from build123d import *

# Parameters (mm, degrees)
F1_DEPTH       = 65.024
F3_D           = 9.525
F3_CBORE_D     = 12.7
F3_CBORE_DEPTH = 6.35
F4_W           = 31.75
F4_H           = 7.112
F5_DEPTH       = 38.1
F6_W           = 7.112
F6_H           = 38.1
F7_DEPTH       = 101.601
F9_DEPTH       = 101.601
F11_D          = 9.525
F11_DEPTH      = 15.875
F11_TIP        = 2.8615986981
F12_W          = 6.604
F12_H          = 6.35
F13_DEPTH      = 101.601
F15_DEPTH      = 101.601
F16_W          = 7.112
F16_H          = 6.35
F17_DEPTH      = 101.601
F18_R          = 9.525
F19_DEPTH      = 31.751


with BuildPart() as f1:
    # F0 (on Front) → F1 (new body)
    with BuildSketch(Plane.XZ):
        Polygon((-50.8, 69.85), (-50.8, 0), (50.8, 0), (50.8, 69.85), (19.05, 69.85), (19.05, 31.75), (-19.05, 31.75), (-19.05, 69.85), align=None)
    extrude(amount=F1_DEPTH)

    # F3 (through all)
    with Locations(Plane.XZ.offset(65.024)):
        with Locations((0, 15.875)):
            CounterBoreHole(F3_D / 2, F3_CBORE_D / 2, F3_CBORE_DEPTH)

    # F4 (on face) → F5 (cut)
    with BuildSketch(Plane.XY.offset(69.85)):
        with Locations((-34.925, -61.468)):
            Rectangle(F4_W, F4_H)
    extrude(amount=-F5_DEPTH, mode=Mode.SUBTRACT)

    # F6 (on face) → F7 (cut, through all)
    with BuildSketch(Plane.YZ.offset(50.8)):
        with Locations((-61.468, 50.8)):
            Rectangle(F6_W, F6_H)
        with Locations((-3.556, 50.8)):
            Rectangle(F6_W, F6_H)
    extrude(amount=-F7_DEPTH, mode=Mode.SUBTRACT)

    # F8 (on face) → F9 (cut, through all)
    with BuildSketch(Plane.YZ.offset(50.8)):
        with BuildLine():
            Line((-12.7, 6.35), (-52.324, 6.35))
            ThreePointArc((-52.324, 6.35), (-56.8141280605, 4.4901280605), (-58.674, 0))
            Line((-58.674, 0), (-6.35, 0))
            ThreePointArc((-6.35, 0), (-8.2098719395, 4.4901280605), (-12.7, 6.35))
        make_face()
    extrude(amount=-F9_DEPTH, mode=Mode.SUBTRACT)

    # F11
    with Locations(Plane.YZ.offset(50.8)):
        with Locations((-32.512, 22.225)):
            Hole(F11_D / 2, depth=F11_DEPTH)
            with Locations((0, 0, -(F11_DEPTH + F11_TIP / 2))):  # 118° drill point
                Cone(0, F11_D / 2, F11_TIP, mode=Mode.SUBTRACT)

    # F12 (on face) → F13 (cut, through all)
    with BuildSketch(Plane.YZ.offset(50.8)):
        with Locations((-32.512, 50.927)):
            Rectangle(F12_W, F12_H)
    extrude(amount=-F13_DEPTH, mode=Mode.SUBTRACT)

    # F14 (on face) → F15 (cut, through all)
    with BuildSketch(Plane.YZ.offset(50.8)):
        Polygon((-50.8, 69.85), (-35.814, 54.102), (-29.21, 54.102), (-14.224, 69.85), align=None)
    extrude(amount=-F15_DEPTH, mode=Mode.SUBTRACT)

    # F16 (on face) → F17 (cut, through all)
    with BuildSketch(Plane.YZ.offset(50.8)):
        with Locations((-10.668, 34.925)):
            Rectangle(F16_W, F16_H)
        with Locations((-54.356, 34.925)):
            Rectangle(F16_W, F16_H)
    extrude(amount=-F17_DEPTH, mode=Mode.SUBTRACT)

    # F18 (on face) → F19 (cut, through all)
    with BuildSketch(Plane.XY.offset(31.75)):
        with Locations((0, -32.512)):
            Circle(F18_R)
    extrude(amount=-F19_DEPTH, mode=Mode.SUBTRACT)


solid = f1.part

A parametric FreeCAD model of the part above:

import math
import FreeCAD as App
import Part
import Sketcher
Q = App.Units.Quantity

doc = App.newDocument("Part")
body = doc.addObject("PartDesign::Body", "Body")

# Sketch on XZ plane
sketch1 = doc.addObject("Sketcher::SketchObject", "Sketch")
body.addObject(sketch1)
sketch1.AttachmentSupport = (doc.XZ_Plane, [""])
sketch1.MapMode = "FlatFace"
sketch1.addGeometry(Part.LineSegment(App.Vector(-50.8, 69.85, 0), App.Vector(-50.8, 0, 0)), False)
sketch1.addGeometry(Part.LineSegment(App.Vector(-50.8, 0, 0), App.Vector(50.8, 0, 0)), False)
sketch1.addGeometry(Part.LineSegment(App.Vector(50.8, 0, 0), App.Vector(50.8, 69.85, 0)), False)
sketch1.addGeometry(Part.LineSegment(App.Vector(50.8, 69.85, 0), App.Vector(19.05, 69.85, 0)), False)
sketch1.addGeometry(Part.LineSegment(App.Vector(19.05, 69.85, 0), App.Vector(19.05, 31.75, 0)), False)
sketch1.addGeometry(Part.LineSegment(App.Vector(19.05, 31.75, 0), App.Vector(-19.05, 31.75, 0)), False)
sketch1.addGeometry(Part.LineSegment(App.Vector(-19.05, 31.75, 0), App.Vector(-19.05, 69.85, 0)), False)
sketch1.addGeometry(Part.LineSegment(App.Vector(-19.05, 69.85, 0), App.Vector(-50.8, 69.85, 0)), False)
sketch1.addConstraint(Sketcher.Constraint("Coincident", 0, 2, 1, 1))
sketch1.addConstraint(Sketcher.Constraint("Coincident", 1, 2, 2, 1))
sketch1.addConstraint(Sketcher.Constraint("Coincident", 2, 2, 3, 1))
sketch1.addConstraint(Sketcher.Constraint("Coincident", 3, 2, 4, 1))
sketch1.addConstraint(Sketcher.Constraint("Coincident", 4, 2, 5, 1))
sketch1.addConstraint(Sketcher.Constraint("Coincident", 5, 2, 6, 1))
sketch1.addConstraint(Sketcher.Constraint("Coincident", 6, 2, 7, 1))
sketch1.addConstraint(Sketcher.Constraint("Coincident", 7, 2, 0, 1))
sketch1.addConstraint(Sketcher.Constraint("Vertical", 0))
sketch1.addConstraint(Sketcher.Constraint("Horizontal", 1))
sketch1.addConstraint(Sketcher.Constraint("Vertical", 2))
sketch1.addConstraint(Sketcher.Constraint("Horizontal", 3))
sketch1.addConstraint(Sketcher.Constraint("Vertical", 4))
sketch1.addConstraint(Sketcher.Constraint("Horizontal", 5))
sketch1.addConstraint(Sketcher.Constraint("Vertical", 6))
sketch1.addConstraint(Sketcher.Constraint("Horizontal", 7))
sketch1.addConstraint(Sketcher.Constraint("Symmetric", 0, 2, 1, 2, -1, 1))
sketch1.addConstraint(Sketcher.Constraint("Symmetric", 3, 2, 6, 2, -2))
sketch1.addConstraint(Sketcher.Constraint("Equal", 5, 4))
sketch1.addConstraint(Sketcher.Constraint("DistanceX", 1, 1, 1, 2, Q("4 in")))
sketch1.addConstraint(Sketcher.Constraint("DistanceX", 5, 2, 5, 1, Q("1.5 in")))
sketch1.addConstraint(Sketcher.Constraint("DistanceY", 0, 2, 0, 1, Q("2.75 in")))
pad1 = doc.addObject("PartDesign::Pad", "Pad")
body.addObject(pad1)
pad1.Profile = sketch1
pad1.Length = Q("2.56 in")

# Sketch on XZ plane
sketch2 = doc.addObject("Sketcher::SketchObject", "Sketch001")
body.addObject(sketch2)
sketch2.AttachmentSupport = (doc.XZ_Plane, [""])
sketch2.MapMode = "FlatFace"
sketch2.AttachmentOffset = App.Placement(App.Vector(0, 0, 2.56 * 25.4), App.Rotation())
sketch2.addGeometry(Part.Circle(App.Vector(0, 15.875, 0), App.Vector(0, 0, 1), 4.7625), False)
sketch2.addConstraint(Sketcher.Constraint("PointOnObject", 0, 3, -2))
sketch2.addConstraint(Sketcher.Constraint("Diameter", 0, Q("0.375 in")))
sketch2.addConstraint(Sketcher.Constraint("DistanceY", -1, 1, 0, 3, Q("0.625 in")))
doc.recompute()
hole = doc.addObject("PartDesign::Hole", "Hole")
body.addObject(hole)
hole.Profile = sketch2
hole.ThreadType = "None"
hole.Diameter = Q("0.375 in")
hole.DepthType = "ThroughAll"
hole.HoleCutType = "Counterbore"
hole.HoleCutDiameter = Q("0.5 in")
hole.HoleCutDepth = Q("0.25 in")

# Sketch on XY plane
sketch3 = doc.addObject("Sketcher::SketchObject", "Sketch002")
body.addObject(sketch3)
sketch3.AttachmentSupport = (doc.XY_Plane, [""])
sketch3.MapMode = "FlatFace"
sketch3.AttachmentOffset = App.Placement(App.Vector(0, 0, 2.75 * 25.4), App.Rotation())
sketch3.addGeometry(Part.LineSegment(App.Vector(-50.8, -57.912, 0), App.Vector(-50.8, -65.024, 0)), False)
sketch3.addGeometry(Part.LineSegment(App.Vector(-50.8, -65.024, 0), App.Vector(-19.05, -65.024, 0)), False)
sketch3.addGeometry(Part.LineSegment(App.Vector(-19.05, -65.024, 0), App.Vector(-19.05, -57.912, 0)), False)
sketch3.addGeometry(Part.LineSegment(App.Vector(-19.05, -57.912, 0), App.Vector(-50.8, -57.912, 0)), False)
sketch3.addConstraint(Sketcher.Constraint("Coincident", 0, 2, 1, 1))
sketch3.addConstraint(Sketcher.Constraint("Coincident", 1, 2, 2, 1))
sketch3.addConstraint(Sketcher.Constraint("Coincident", 2, 2, 3, 1))
sketch3.addConstraint(Sketcher.Constraint("Coincident", 3, 2, 0, 1))
sketch3.addConstraint(Sketcher.Constraint("Vertical", 0))
sketch3.addConstraint(Sketcher.Constraint("Horizontal", 1))
sketch3.addConstraint(Sketcher.Constraint("Vertical", 2))
sketch3.addConstraint(Sketcher.Constraint("Horizontal", 3))
sketch3.addConstraint(Sketcher.Constraint("DistanceX", 0, 2, -1, 1, Q("2 in")))
sketch3.addConstraint(Sketcher.Constraint("DistanceX", 1, 1, 1, 2, Q("1.25 in")))
sketch3.addConstraint(Sketcher.Constraint("DistanceY", 0, 2, 0, 1, Q("0.28 in")))
sketch3.addConstraint(Sketcher.Constraint("DistanceY", 0, 2, -1, 1, Q("2.56 in")))
pocket1 = doc.addObject("PartDesign::Pocket", "Pocket")
body.addObject(pocket1)
pocket1.Profile = sketch3
pocket1.Length = Q("1.5 in")

# Sketch on YZ plane
sketch4 = doc.addObject("Sketcher::SketchObject", "Sketch003")
body.addObject(sketch4)
sketch4.AttachmentSupport = (doc.YZ_Plane, [""])
sketch4.MapMode = "FlatFace"
sketch4.AttachmentOffset = App.Placement(App.Vector(0, 0, 2 * 25.4), App.Rotation())
sketch4.addGeometry(Part.LineSegment(App.Vector(-65.024, 69.85, 0), App.Vector(-65.024, 31.75, 0)), False)
sketch4.addGeometry(Part.LineSegment(App.Vector(-65.024, 31.75, 0), App.Vector(-57.912, 31.75, 0)), False)
sketch4.addGeometry(Part.LineSegment(App.Vector(-57.912, 31.75, 0), App.Vector(-57.912, 69.85, 0)), False)
sketch4.addGeometry(Part.LineSegment(App.Vector(-57.912, 69.85, 0), App.Vector(-65.024, 69.85, 0)), False)
sketch4.addGeometry(Part.LineSegment(App.Vector(-7.112, 69.85, 0), App.Vector(-7.112, 31.75, 0)), False)
sketch4.addGeometry(Part.LineSegment(App.Vector(-7.112, 31.75, 0), App.Vector(0, 31.75, 0)), False)
sketch4.addGeometry(Part.LineSegment(App.Vector(0, 31.75, 0), App.Vector(0, 69.85, 0)), False)
sketch4.addGeometry(Part.LineSegment(App.Vector(0, 69.85, 0), App.Vector(-7.112, 69.85, 0)), False)
sketch4.addConstraint(Sketcher.Constraint("Coincident", 0, 2, 1, 1))
sketch4.addConstraint(Sketcher.Constraint("Coincident", 1, 2, 2, 1))
sketch4.addConstraint(Sketcher.Constraint("Coincident", 2, 2, 3, 1))
sketch4.addConstraint(Sketcher.Constraint("Coincident", 3, 2, 0, 1))
sketch4.addConstraint(Sketcher.Constraint("Coincident", 4, 2, 5, 1))
sketch4.addConstraint(Sketcher.Constraint("Coincident", 5, 2, 6, 1))
sketch4.addConstraint(Sketcher.Constraint("Coincident", 6, 2, 7, 1))
sketch4.addConstraint(Sketcher.Constraint("Coincident", 7, 2, 4, 1))
sketch4.addConstraint(Sketcher.Constraint("Vertical", 0))
sketch4.addConstraint(Sketcher.Constraint("Horizontal", 1))
sketch4.addConstraint(Sketcher.Constraint("Vertical", 2))
sketch4.addConstraint(Sketcher.Constraint("Horizontal", 3))
sketch4.addConstraint(Sketcher.Constraint("Vertical", 4))
sketch4.addConstraint(Sketcher.Constraint("Horizontal", 5))
sketch4.addConstraint(Sketcher.Constraint("Vertical", 6))
sketch4.addConstraint(Sketcher.Constraint("Horizontal", 7))
sketch4.addConstraint(Sketcher.Constraint("PointOnObject", 5, 2, -2))
sketch4.addConstraint(Sketcher.Constraint("Horizontal", 1, 2, 4, 2))
sketch4.addConstraint(Sketcher.Constraint("Horizontal", 3, 2, 6, 2))
sketch4.addConstraint(Sketcher.Constraint("Equal", 3, 5))
sketch4.addConstraint(Sketcher.Constraint("DistanceY", 0, 2, 0, 1, Q("1.5 in")))
sketch4.addConstraint(Sketcher.Constraint("DistanceX", 1, 2, 4, 2, Q("2 in")))
sketch4.addConstraint(Sketcher.Constraint("DistanceX", 1, 1, 1, 2, Q("0.28 in")))
sketch4.addConstraint(Sketcher.Constraint("DistanceY", -1, 1, 0, 2, Q("1.25 in")))
pocket2 = doc.addObject("PartDesign::Pocket", "Pocket001")
body.addObject(pocket2)
pocket2.Profile = sketch4
pocket2.Type = "ThroughAll"

# Sketch on YZ plane
sketch5 = doc.addObject("Sketcher::SketchObject", "Sketch004")
body.addObject(sketch5)
sketch5.AttachmentSupport = (doc.YZ_Plane, [""])
sketch5.MapMode = "FlatFace"
sketch5.AttachmentOffset = App.Placement(App.Vector(0, 0, 2 * 25.4), App.Rotation())
sketch5.addGeometry(Part.LineSegment(App.Vector(-12.7, 6.35, 0), App.Vector(-52.324, 6.35, 0)), False)
sketch5.addGeometry(Part.ArcOfCircle(Part.Circle(App.Vector(-52.324, 0, 0), App.Vector(0, 0, 1), 6.35), math.radians(90), math.radians(180)), False)
sketch5.addGeometry(Part.LineSegment(App.Vector(-58.674, 0, 0), App.Vector(-6.35, 0, 0)), False)
sketch5.addGeometry(Part.ArcOfCircle(Part.Circle(App.Vector(-12.7, 0, 0), App.Vector(0, 0, 1), 6.35), math.radians(0), math.radians(90)), False)
sketch5.addConstraint(Sketcher.Constraint("Tangent", 0, 2, 1, 1))
sketch5.addConstraint(Sketcher.Constraint("Coincident", 1, 2, 2, 1))
sketch5.addConstraint(Sketcher.Constraint("Coincident", 2, 2, 3, 1))
sketch5.addConstraint(Sketcher.Constraint("Tangent", 3, 2, 0, 1))
sketch5.addConstraint(Sketcher.Constraint("Horizontal", 0))
sketch5.addConstraint(Sketcher.Constraint("Horizontal", 2))
sketch5.addConstraint(Sketcher.Constraint("Equal", 1, 3))
sketch5.addConstraint(Sketcher.Constraint("PointOnObject", 1, 3, -1))
sketch5.addConstraint(Sketcher.Constraint("PointOnObject", 1, 2, -1))
sketch5.addConstraint(Sketcher.Constraint("Radius", 1, Q("0.25 in")))
sketch5.addConstraint(Sketcher.Constraint("DistanceX", 0, 2, 0, 1, Q("1.56 in")))
sketch5.addConstraint(Sketcher.Constraint("DistanceX", 3, 3, -1, 1, Q("0.5 in")))
pocket3 = doc.addObject("PartDesign::Pocket", "Pocket002")
body.addObject(pocket3)
pocket3.Profile = sketch5
pocket3.Type = "ThroughAll"

# Sketch on YZ plane
sketch6 = doc.addObject("Sketcher::SketchObject", "Sketch005")
body.addObject(sketch6)
sketch6.AttachmentSupport = (doc.YZ_Plane, [""])
sketch6.MapMode = "FlatFace"
sketch6.AttachmentOffset = App.Placement(App.Vector(0, 0, 2 * 25.4), App.Rotation())
sketch6.addGeometry(Part.Circle(App.Vector(-32.512, 22.225, 0), App.Vector(0, 0, 1), 4.7625), False)
sketch6.addConstraint(Sketcher.Constraint("Diameter", 0, Q("0.375 in")))
sketch6.addConstraint(Sketcher.Constraint("DistanceX", 0, 3, -1, 1, Q("1.28 in")))
sketch6.addConstraint(Sketcher.Constraint("DistanceY", -1, 1, 0, 3, Q("0.875 in")))
doc.recompute()
hole2 = doc.addObject("PartDesign::Hole", "Hole001")
body.addObject(hole2)
hole2.Profile = sketch6
hole2.ThreadType = "None"
hole2.Diameter = Q("0.375 in")
hole2.DepthType = "Dimension"
hole2.Depth = Q("0.625 in")
hole2.DrillPoint = "Angled"
hole2.DrillPointAngle = 118

# Sketch on YZ plane
sketch7 = doc.addObject("Sketcher::SketchObject", "Sketch006")
body.addObject(sketch7)
sketch7.AttachmentSupport = (doc.YZ_Plane, [""])
sketch7.MapMode = "FlatFace"
sketch7.AttachmentOffset = App.Placement(App.Vector(0, 0, 2 * 25.4), App.Rotation())
sketch7.addGeometry(Part.LineSegment(App.Vector(-35.814, 54.102, 0), App.Vector(-35.814, 47.752, 0)), False)
sketch7.addGeometry(Part.LineSegment(App.Vector(-35.814, 47.752, 0), App.Vector(-29.21, 47.752, 0)), False)
sketch7.addGeometry(Part.LineSegment(App.Vector(-29.21, 47.752, 0), App.Vector(-29.21, 54.102, 0)), False)
sketch7.addGeometry(Part.LineSegment(App.Vector(-29.21, 54.102, 0), App.Vector(-35.814, 54.102, 0)), False)
sketch7.addConstraint(Sketcher.Constraint("Coincident", 0, 2, 1, 1))
sketch7.addConstraint(Sketcher.Constraint("Coincident", 1, 2, 2, 1))
sketch7.addConstraint(Sketcher.Constraint("Coincident", 2, 2, 3, 1))
sketch7.addConstraint(Sketcher.Constraint("Coincident", 3, 2, 0, 1))
sketch7.addConstraint(Sketcher.Constraint("Vertical", 0))
sketch7.addConstraint(Sketcher.Constraint("Horizontal", 1))
sketch7.addConstraint(Sketcher.Constraint("Vertical", 2))
sketch7.addConstraint(Sketcher.Constraint("Horizontal", 3))
sketch7.addConstraint(Sketcher.Constraint("DistanceX", 1, 1, 1, 2, Q("0.26 in")))
sketch7.addConstraint(Sketcher.Constraint("DistanceY", 0, 2, 0, 1, Q("0.25 in")))
sketch7.addConstraint(Sketcher.Constraint("DistanceX", 0, 2, -1, 1, Q("1.41 in")))
sketch7.addConstraint(Sketcher.Constraint("DistanceY", -1, 1, 0, 2, Q("1.88 in")))
pocket4 = doc.addObject("PartDesign::Pocket", "Pocket003")
body.addObject(pocket4)
pocket4.Profile = sketch7
pocket4.Type = "ThroughAll"

# Sketch on YZ plane
sketch8 = doc.addObject("Sketcher::SketchObject", "Sketch007")
body.addObject(sketch8)
sketch8.AttachmentSupport = (doc.YZ_Plane, [""])
sketch8.MapMode = "FlatFace"
sketch8.AttachmentOffset = App.Placement(App.Vector(0, 0, 2 * 25.4), App.Rotation())
sketch8.addGeometry(Part.LineSegment(App.Vector(-50.8, 69.85, 0), App.Vector(-35.814, 54.102, 0)), False)
sketch8.addGeometry(Part.LineSegment(App.Vector(-35.814, 54.102, 0), App.Vector(-29.21, 54.102, 0)), False)
sketch8.addGeometry(Part.LineSegment(App.Vector(-29.21, 54.102, 0), App.Vector(-14.224, 69.85, 0)), False)
sketch8.addGeometry(Part.LineSegment(App.Vector(-14.224, 69.85, 0), App.Vector(-50.8, 69.85, 0)), False)
sketch8.addConstraint(Sketcher.Constraint("Coincident", 0, 2, 1, 1))
sketch8.addConstraint(Sketcher.Constraint("Coincident", 1, 2, 2, 1))
sketch8.addConstraint(Sketcher.Constraint("Coincident", 2, 2, 3, 1))
sketch8.addConstraint(Sketcher.Constraint("Coincident", 3, 2, 0, 1))
sketch8.addConstraint(Sketcher.Constraint("Horizontal", 1))
sketch8.addConstraint(Sketcher.Constraint("Horizontal", 3))
sketch8.addConstraint(Sketcher.Constraint("Equal", 0, 2))
sketch8.addConstraint(Sketcher.Constraint("DistanceX", 3, 2, -1, 1, Q("2 in")))
sketch8.addConstraint(Sketcher.Constraint("DistanceX", 1, 1, 1, 2, Q("0.26 in")))
sketch8.addConstraint(Sketcher.Constraint("DistanceX", 3, 2, 3, 1, Q("1.44 in")))
sketch8.addConstraint(Sketcher.Constraint("DistanceY", -1, 1, 0, 2, Q("2.13 in")))
sketch8.addConstraint(Sketcher.Constraint("DistanceY", -1, 1, 2, 2, Q("2.75 in")))
pocket5 = doc.addObject("PartDesign::Pocket", "Pocket004")
body.addObject(pocket5)
pocket5.Profile = sketch8
pocket5.Type = "ThroughAll"

# Sketch on YZ plane
sketch9 = doc.addObject("Sketcher::SketchObject", "Sketch008")
body.addObject(sketch9)
sketch9.AttachmentSupport = (doc.YZ_Plane, [""])
sketch9.MapMode = "FlatFace"
sketch9.AttachmentOffset = App.Placement(App.Vector(0, 0, 2 * 25.4), App.Rotation())
sketch9.addGeometry(Part.LineSegment(App.Vector(-14.224, 38.1, 0), App.Vector(-14.224, 31.75, 0)), False)
sketch9.addGeometry(Part.LineSegment(App.Vector(-14.224, 31.75, 0), App.Vector(-7.112, 31.75, 0)), False)
sketch9.addGeometry(Part.LineSegment(App.Vector(-7.112, 31.75, 0), App.Vector(-7.112, 38.1, 0)), False)
sketch9.addGeometry(Part.LineSegment(App.Vector(-7.112, 38.1, 0), App.Vector(-14.224, 38.1, 0)), False)
sketch9.addGeometry(Part.LineSegment(App.Vector(-57.912, 38.1, 0), App.Vector(-57.912, 31.75, 0)), False)
sketch9.addGeometry(Part.LineSegment(App.Vector(-57.912, 31.75, 0), App.Vector(-50.8, 31.75, 0)), False)
sketch9.addGeometry(Part.LineSegment(App.Vector(-50.8, 31.75, 0), App.Vector(-50.8, 38.1, 0)), False)
sketch9.addGeometry(Part.LineSegment(App.Vector(-50.8, 38.1, 0), App.Vector(-57.912, 38.1, 0)), False)
sketch9.addConstraint(Sketcher.Constraint("Coincident", 0, 2, 1, 1))
sketch9.addConstraint(Sketcher.Constraint("Coincident", 1, 2, 2, 1))
sketch9.addConstraint(Sketcher.Constraint("Coincident", 2, 2, 3, 1))
sketch9.addConstraint(Sketcher.Constraint("Coincident", 3, 2, 0, 1))
sketch9.addConstraint(Sketcher.Constraint("Coincident", 4, 2, 5, 1))
sketch9.addConstraint(Sketcher.Constraint("Coincident", 5, 2, 6, 1))
sketch9.addConstraint(Sketcher.Constraint("Coincident", 6, 2, 7, 1))
sketch9.addConstraint(Sketcher.Constraint("Coincident", 7, 2, 4, 1))
sketch9.addConstraint(Sketcher.Constraint("Vertical", 0))
sketch9.addConstraint(Sketcher.Constraint("Horizontal", 1))
sketch9.addConstraint(Sketcher.Constraint("Vertical", 2))
sketch9.addConstraint(Sketcher.Constraint("Horizontal", 3))
sketch9.addConstraint(Sketcher.Constraint("Vertical", 4))
sketch9.addConstraint(Sketcher.Constraint("Horizontal", 5))
sketch9.addConstraint(Sketcher.Constraint("Vertical", 6))
sketch9.addConstraint(Sketcher.Constraint("Horizontal", 7))
sketch9.addConstraint(Sketcher.Constraint("Horizontal", 1, 2, 4, 2))
sketch9.addConstraint(Sketcher.Constraint("Horizontal", 3, 2, 6, 2))
sketch9.addConstraint(Sketcher.Constraint("Equal", 3, 5))
sketch9.addConstraint(Sketcher.Constraint("DistanceX", 5, 2, -1, 1, Q("2 in")))
sketch9.addConstraint(Sketcher.Constraint("DistanceX", 4, 2, 1, 2, Q("2 in")))
sketch9.addConstraint(Sketcher.Constraint("DistanceX", 1, 1, 1, 2, Q("0.28 in")))
sketch9.addConstraint(Sketcher.Constraint("DistanceY", 0, 2, 0, 1, Q("0.25 in")))
sketch9.addConstraint(Sketcher.Constraint("DistanceY", -1, 1, 2, 2, Q("1.5 in")))
pocket6 = doc.addObject("PartDesign::Pocket", "Pocket005")
body.addObject(pocket6)
pocket6.Profile = sketch9
pocket6.Type = "ThroughAll"

# Sketch on XY plane
sketch10 = doc.addObject("Sketcher::SketchObject", "Sketch009")
body.addObject(sketch10)
sketch10.AttachmentSupport = (doc.XY_Plane, [""])
sketch10.MapMode = "FlatFace"
sketch10.AttachmentOffset = App.Placement(App.Vector(0, 0, 1.25 * 25.4), App.Rotation())
sketch10.addGeometry(Part.Circle(App.Vector(0, -32.512, 0), App.Vector(0, 0, 1), 9.525), False)
sketch10.addConstraint(Sketcher.Constraint("PointOnObject", 0, 3, -2))
sketch10.addConstraint(Sketcher.Constraint("Diameter", 0, Q("0.75 in")))
sketch10.addConstraint(Sketcher.Constraint("DistanceY", 0, 3, -1, 1, Q("1.28 in")))
pocket7 = doc.addObject("PartDesign::Pocket", "Pocket006")
body.addObject(pocket7)
pocket7.Profile = sketch10
pocket7.Type = "ThroughAll"

doc.recompute()
